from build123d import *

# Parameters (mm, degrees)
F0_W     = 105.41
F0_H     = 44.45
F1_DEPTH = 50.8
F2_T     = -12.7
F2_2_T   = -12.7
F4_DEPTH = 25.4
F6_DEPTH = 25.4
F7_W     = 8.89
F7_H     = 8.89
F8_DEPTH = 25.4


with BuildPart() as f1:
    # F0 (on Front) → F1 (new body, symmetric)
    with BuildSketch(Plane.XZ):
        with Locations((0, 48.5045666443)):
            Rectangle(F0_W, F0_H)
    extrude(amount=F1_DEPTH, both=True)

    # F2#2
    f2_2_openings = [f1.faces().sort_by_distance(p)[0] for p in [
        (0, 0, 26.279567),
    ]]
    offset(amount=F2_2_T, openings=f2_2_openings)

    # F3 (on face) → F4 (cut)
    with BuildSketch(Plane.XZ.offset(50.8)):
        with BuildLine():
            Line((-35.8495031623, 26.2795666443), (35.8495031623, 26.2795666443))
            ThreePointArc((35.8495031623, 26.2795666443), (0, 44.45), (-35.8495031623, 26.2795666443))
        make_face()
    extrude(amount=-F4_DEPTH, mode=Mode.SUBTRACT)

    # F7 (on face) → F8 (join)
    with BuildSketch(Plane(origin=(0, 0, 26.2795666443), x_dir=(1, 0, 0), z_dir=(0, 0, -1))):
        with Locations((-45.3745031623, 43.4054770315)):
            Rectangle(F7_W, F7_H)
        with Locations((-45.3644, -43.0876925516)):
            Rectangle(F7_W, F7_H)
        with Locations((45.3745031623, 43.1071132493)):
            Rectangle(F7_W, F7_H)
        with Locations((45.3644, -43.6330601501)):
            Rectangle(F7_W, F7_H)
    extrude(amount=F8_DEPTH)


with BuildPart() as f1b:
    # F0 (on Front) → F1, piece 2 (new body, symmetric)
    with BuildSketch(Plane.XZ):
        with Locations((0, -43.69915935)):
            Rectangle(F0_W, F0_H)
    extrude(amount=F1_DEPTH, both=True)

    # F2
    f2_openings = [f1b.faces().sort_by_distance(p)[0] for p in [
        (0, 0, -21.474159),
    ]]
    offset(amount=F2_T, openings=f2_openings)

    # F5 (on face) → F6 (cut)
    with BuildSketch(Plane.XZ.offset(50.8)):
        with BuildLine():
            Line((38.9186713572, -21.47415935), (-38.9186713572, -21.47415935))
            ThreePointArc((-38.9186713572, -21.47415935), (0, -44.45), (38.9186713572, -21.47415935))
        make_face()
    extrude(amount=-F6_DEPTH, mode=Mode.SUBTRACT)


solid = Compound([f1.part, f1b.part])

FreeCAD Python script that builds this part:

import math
import FreeCAD as App
import Part
import Sketcher

V = App.Vector
Q = App.Units.Quantity


def faces_at(feature, points):
    """Names of the faces that lie closest to the given points."""
    faces = feature.Shape.Faces
    near = lambda p: min(range(len(faces)), key=lambda i: faces[i].distToShape(Part.Vertex(*p))[0])
    return sorted({f"Face{near(p) + 1}" for p in points})


def add_polygon(sketch, points):
    """Adds a closed chain of lines whose ends are joined by coincident constraints."""
    first, n = sketch.GeometryCount, len(points)
    for a, b in zip(points, points[1:] + points[:1]):
        sketch.addGeometry(Part.LineSegment(App.Vector(*a, 0), App.Vector(*b, 0)), False)
    for i in range(n):
        sketch.addConstraint(Sketcher.Constraint("Coincident", first + i, 2, first + (i + 1) % n, 1))

doc = App.newDocument("Part")
body = doc.addObject("PartDesign::Body", "Body")

sketch1 = body.newObject("Sketcher::SketchObject", "Sketch")
sketch1.AttachmentSupport = (doc.getObject("XZ_Plane"), [""])
sketch1.MapMode = "FlatFace"
add_polygon(sketch1, [(-53, 71), (-53, 26), (53, 26), (53, 71)])
sketch1.addConstraint(Sketcher.Constraint("Vertical", 0))
sketch1.addConstraint(Sketcher.Constraint("Horizontal", 1))
sketch1.addConstraint(Sketcher.Constraint("Vertical", 2))
sketch1.addConstraint(Sketcher.Constraint("Horizontal", 3))
sketch1.addConstraint(Sketcher.Constraint("DistanceX", 1, 1, 1, 2, Q("4.15 in")))
sketch1.addConstraint(Sketcher.Constraint("DistanceY", 0, 2, 0, 1, Q("1.75 in")))
sketch1.addConstraint(Sketcher.Constraint("DistanceX", 0, 2, -1, 1, Q("2.075 in")))
sketch1.addConstraint(Sketcher.Constraint("DistanceY", -1, 1, 0, 2, 26.279567))
pad1 = body.newObject("PartDesign::Pad", "Pad")
pad1.Profile = sketch1
pad1.Length = Q("4 in")
pad1.Midplane = True
doc.recompute()

thickness = body.newObject("PartDesign::Thickness", "Thickness")
thickness.Base = (pad1, faces_at(pad1, [(0, 0, 26.28)]))
thickness.Value = Q("0.5 in")
thickness.Reversed = True
thickness.Join = "Arc"

sketch2 = body.newObject("Sketcher::SketchObject", "Sketch001")
sketch2.AttachmentSupport = (doc.getObject("XZ_Plane"), [""])
sketch2.MapMode = "FlatFace"
sketch2.AttachmentOffset = App.Placement(V(0, 0, 2 * 25.4), App.Rotation())
sketch2.addGeometry(Part.LineSegment(V(-36, 26, 0), V(36, 26, 0)), False)
sketch2.addGeometry(Part.ArcOfCircle(Part.Circle(V(0, 0, 0), V(0, 0, 1), 44), math.radians(36), math.radians(144)), False)
sketch2.addConstraint(Sketcher.Constraint("Coincident", 0, 1, 1, 2))
sketch2.addConstraint(Sketcher.Constraint("Coincident", 1, 1, 0, 2))
sketch2.addConstraint(Sketcher.Constraint("Horizontal", 0))
sketch2.addConstraint(Sketcher.Constraint("Coincident", 1, 3, -1, 1))
sketch2.addConstraint(Sketcher.Constraint("Radius", 1, Q("1.75 in")))
sketch2.addConstraint(Sketcher.Constraint("DistanceX", 0, 1, 0, 2, 71.699006))
pocket1 = body.newObject("PartDesign::Pocket", "Pocket")
pocket1.Profile = sketch2
pocket1.Length = Q("1 in")

sketch3 = body.newObject("Sketcher::SketchObject", "Sketch002")
sketch3.AttachmentSupport = (doc.getObject("XY_Plane"), [""])
sketch3.MapMode = "FlatFace"
sketch3.AttachmentOffset = App.Placement(V(0, 0, 26.279567), App.Rotation())
add_polygon(sketch3, [(-50, -48), (-50, -39), (-41, -39), (-41, -48)])
add_polygon(sketch3, [(-50, 39), (-50, 48), (-41, 48), (-41, 39)])
add_polygon(sketch3, [(41, -48), (41, -39), (50, -39), (50, -48)])
add_polygon(sketch3, [(41, 39), (41, 48), (50, 48), (50, 39)])
sketch3.addConstraint(Sketcher.Constraint("Vertical", 0))
sketch3.addConstraint(Sketcher.Constraint("Horizontal", 1))
sketch3.addConstraint(Sketcher.Constraint("Vertical", 2))
sketch3.addConstraint(Sketcher.Constraint("Horizontal", 3))
sketch3.addConstraint(Sketcher.Constraint("Vertical", 4))
sketch3.addConstraint(Sketcher.Constraint("Horizontal", 5))
sketch3.addConstraint(Sketcher.Constraint("Vertical", 6))
sketch3.addConstraint(Sketcher.Constraint("Horizontal", 7))
sketch3.addConstraint(Sketcher.Constraint("Vertical", 8))
sketch3.addConstraint(Sketcher.Constraint("Horizontal", 9))
sketch3.addConstraint(Sketcher.Constraint("Vertical", 10))
sketch3.addConstraint(Sketcher.Constraint("Horizontal", 11))
sketch3.addConstraint(Sketcher.Constraint("Vertical", 12))
sketch3.addConstraint(Sketcher.Constraint("Horizontal", 13))
sketch3.addConstraint(Sketcher.Constraint("Vertical", 14))
sketch3.addConstraint(Sketcher.Constraint("Horizontal", 15))
sketch3.addConstraint(Sketcher.Constraint("Equal", 3, 5))
sketch3.addConstraint(Sketcher.Constraint("Equal", 7, 9))
sketch3.addConstraint(Sketcher.Constraint("Equal", 11, 13))
sketch3.addConstraint(Sketcher.Constraint("Equal", 15, 0))
sketch3.addConstraint(Sketcher.Constraint("Equal", 2, 4))
sketch3.addConstraint(Sketcher.Constraint("Equal", 6, 8))
sketch3.addConstraint(Sketcher.Constraint("Equal", 10, 12))
sketch3.addConstraint(Sketcher.Constraint("DistanceX", 1, 1, 1, 2, Q("0.35 in")))
sketch3.addConstraint(Sketcher.Constraint("DistanceX", 4, 2, -1, 1, Q("1.961 in")))
sketch3.addConstraint(Sketcher.Constraint("DistanceX", -1, 1, 12, 2, Q("1.611 in")))
sketch3.addConstraint(Sketcher.Constraint("DistanceY", -1, 1, 12, 2, 48.07806))
sketch3.addConstraint(Sketcher.Constraint("DistanceY", 0, 2, 4, 2, 86.49317))
sketch3.addConstraint(Sketcher.Constraint("DistanceX", 0, 2, -1, 1, 49.819503))
sketch3.addConstraint(Sketcher.Constraint("DistanceY", 0, 2, -1, 1, 38.960477))
sketch3.addConstraint(Sketcher.Constraint("DistanceX", -1, 1, 8, 2, 40.929503))
sketch3.addConstraint(Sketcher.Constraint("DistanceY", 8, 2, -1, 1, 38.662113))
pad2 = body.newObject("PartDesign::Pad", "Pad001")
pad2.Profile = sketch3
pad2.Length = Q("1 in")
pad2.Reversed = True
body2 = doc.addObject("PartDesign::Body", "Body001")

sketch4 = body2.newObject("Sketcher::SketchObject", "Sketch003")
sketch4.AttachmentSupport = (doc.getObject("XZ_Plane001"), [""])
sketch4.MapMode = "FlatFace"
add_polygon(sketch4, [(-53, -21), (-53, -66), (53, -66), (53, -21)])
sketch4.addConstraint(Sketcher.Constraint("Vertical", 0))
sketch4.addConstraint(Sketcher.Constraint("Horizontal", 1))
sketch4.addConstraint(Sketcher.Constraint("Vertical", 2))
sketch4.addConstraint(Sketcher.Constraint("Horizontal", 3))
sketch4.addConstraint(Sketcher.Constraint("DistanceX", 1, 1, 1, 2, Q("4.15 in")))
sketch4.addConstraint(Sketcher.Constraint("DistanceY", 0, 2, 0, 1, Q("1.75 in")))
sketch4.addConstraint(Sketcher.Constraint("DistanceX", 0, 2, -1, 1, Q("2.075 in")))
sketch4.addConstraint(Sketcher.Constraint("DistanceY", 0, 2, -1, 1, 65.924159))
pad3 = body2.newObject("PartDesign::Pad", "Pad002")
pad3.Profile = sketch4
pad3.Length = Q("4 in")
pad3.Midplane = True
doc.recompute()

thickness2 = body2.newObject("PartDesign::Thickness", "Thickness001")
thickness2.Base = (pad3, faces_at(pad3, [(0, 0, -21.474)]))
thickness2.Value = Q("0.5 in")
thickness2.Reversed = True
thickness2.Join = "Arc"

sketch5 = body2.newObject("Sketcher::SketchObject", "Sketch004")
sketch5.AttachmentSupport = (doc.getObject("XZ_Plane001"), [""])
sketch5.MapMode = "FlatFace"
sketch5.AttachmentOffset = App.Placement(V(0, 0, 2 * 25.4), App.Rotation())
sketch5.addGeometry(Part.LineSegment(V(39, -21, 0), V(-39, -21, 0)), False)
sketch5.addGeometry(Part.ArcOfCircle(Part.Circle(V(0, 0, 0), V(0, 0, 1), 44), math.radians(-151), math.radians(-29)), False)
sketch5.addConstraint(Sketcher.Constraint("Coincident", 0, 1, 1, 2))
sketch5.addConstraint(Sketcher.Constraint("Coincident", 1, 1, 0, 2))
sketch5.addConstraint(Sketcher.Constraint("Horizontal", 0))
sketch5.addConstraint(Sketcher.Constraint("Coincident", 1, 3, -1, 1))
sketch5.addConstraint(Sketcher.Constraint("Radius", 1, Q("1.75 in")))
sketch5.addConstraint(Sketcher.Constraint("DistanceX", 0, 2, 0, 1, 77.837343))
pocket2 = body2.newObject("PartDesign::Pocket", "Pocket001")
pocket2.Profile = sketch5
pocket2.Length = Q("1 in")

doc.recompute()
